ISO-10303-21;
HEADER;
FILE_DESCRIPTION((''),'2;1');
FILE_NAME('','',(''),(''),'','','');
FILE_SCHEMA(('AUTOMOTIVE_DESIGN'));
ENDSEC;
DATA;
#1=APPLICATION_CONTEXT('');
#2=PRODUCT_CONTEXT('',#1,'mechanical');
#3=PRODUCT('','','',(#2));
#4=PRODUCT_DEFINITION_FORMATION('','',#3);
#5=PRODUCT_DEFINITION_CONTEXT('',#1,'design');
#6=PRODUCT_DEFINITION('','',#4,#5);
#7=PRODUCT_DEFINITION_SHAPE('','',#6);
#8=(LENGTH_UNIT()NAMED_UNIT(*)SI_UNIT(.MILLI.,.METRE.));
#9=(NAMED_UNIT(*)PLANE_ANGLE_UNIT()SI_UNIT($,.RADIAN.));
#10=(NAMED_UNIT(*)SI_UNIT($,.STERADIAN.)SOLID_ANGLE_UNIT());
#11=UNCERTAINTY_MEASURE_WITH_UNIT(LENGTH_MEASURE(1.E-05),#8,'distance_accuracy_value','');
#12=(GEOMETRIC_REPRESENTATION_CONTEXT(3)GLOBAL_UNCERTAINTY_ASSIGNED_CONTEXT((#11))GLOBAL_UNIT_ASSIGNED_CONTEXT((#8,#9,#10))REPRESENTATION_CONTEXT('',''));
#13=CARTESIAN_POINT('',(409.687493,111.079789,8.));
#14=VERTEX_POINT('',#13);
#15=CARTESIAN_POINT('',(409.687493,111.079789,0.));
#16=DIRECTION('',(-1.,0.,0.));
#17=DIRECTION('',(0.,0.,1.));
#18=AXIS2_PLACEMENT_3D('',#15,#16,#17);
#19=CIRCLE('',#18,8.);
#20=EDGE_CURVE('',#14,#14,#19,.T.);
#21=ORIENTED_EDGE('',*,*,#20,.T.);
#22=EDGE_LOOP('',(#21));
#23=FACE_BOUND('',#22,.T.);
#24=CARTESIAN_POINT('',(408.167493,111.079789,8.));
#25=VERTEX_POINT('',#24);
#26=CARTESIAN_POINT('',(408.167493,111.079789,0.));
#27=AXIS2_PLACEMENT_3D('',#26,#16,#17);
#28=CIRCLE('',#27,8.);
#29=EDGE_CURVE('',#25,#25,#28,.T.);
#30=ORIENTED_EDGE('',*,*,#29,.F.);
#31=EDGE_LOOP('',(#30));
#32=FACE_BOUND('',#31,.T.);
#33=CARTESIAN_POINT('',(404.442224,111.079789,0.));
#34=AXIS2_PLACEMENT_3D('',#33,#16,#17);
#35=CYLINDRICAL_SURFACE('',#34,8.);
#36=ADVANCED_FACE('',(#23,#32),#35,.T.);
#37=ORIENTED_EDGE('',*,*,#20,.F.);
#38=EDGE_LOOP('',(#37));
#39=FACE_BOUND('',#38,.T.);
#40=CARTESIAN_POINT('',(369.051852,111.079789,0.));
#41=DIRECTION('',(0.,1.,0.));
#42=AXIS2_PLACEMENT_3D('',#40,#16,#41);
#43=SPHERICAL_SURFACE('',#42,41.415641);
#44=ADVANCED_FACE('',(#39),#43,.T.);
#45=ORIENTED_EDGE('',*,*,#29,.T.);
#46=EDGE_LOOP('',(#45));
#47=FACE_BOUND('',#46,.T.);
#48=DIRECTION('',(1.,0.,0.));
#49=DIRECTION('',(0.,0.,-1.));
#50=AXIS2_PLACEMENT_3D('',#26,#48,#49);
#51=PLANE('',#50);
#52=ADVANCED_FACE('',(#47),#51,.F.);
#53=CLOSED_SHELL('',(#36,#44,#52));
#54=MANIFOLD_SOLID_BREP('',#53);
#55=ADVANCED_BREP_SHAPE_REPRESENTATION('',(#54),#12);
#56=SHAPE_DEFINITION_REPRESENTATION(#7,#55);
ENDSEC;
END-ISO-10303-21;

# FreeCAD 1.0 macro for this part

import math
import FreeCAD as App
import Part
import Sketcher
from FreeCAD import Vector
Q = App.Units.Quantity

doc = App.newDocument("Part")
body = doc.addObject("PartDesign::Body", "Body")

sketch1 = body.newObject("Sketcher::SketchObject", "Sketch")
sketch1.AttachmentSupport = (doc.getObject("XY_Plane"), [""])
sketch1.MapMode = "FlatFace"
sketch1.addGeometry([
    Part.LineSegment(Vector(408.167493, 119.079789, 0), Vector(408.167493, 111.079789, 0)),
    Part.LineSegment(Vector(408.167493, 111.079789, 0), Vector(410.467493, 111.079789, 0)),
    Part.ArcOfCircle(Part.Circle(Vector(369.051852, 111.079789, 0), Vector(0, 0, 1), 41.415641), math.radians(0), math.radians(11.137474)),
    Part.LineSegment(Vector(409.687493, 119.079789, 0), Vector(408.167493, 119.079789, 0)),
], False)
sketch1.addGeometry(Part.LineSegment(Vector(369.051852, 111.079789, 0), Vector(410.467493, 111.079789, 0)), True)
sketch1.addConstraint([
    Sketcher.Constraint("Coincident", 0, 2, 1, 1),
    Sketcher.Constraint("Coincident", 1, 2, 2, 1),
    Sketcher.Constraint("Coincident", 2, 2, 3, 1),
    Sketcher.Constraint("Coincident", 3, 2, 0, 1),
    Sketcher.Constraint("Vertical", 0),
    Sketcher.Constraint("Horizontal", 1),
    Sketcher.Constraint("Horizontal", 3),
    Sketcher.Constraint("Horizontal", 4),
    Sketcher.Constraint("Coincident", 4, 1, 2, 3),
    Sketcher.Constraint("Coincident", 4, 2, 1, 2),
    Sketcher.Constraint("DistanceY", 0, 2, 0, 1, Q("8 mm")),
    Sketcher.Constraint("DistanceX", 1, 1, 1, 2, Q("2.3 mm")),
    Sketcher.Constraint("DistanceX", 3, 2, 3, 1, Q("1.52 mm")),
    Sketcher.Constraint("DistanceX", -1, 1, 2, 3, Q("369.051852 mm")),
    Sketcher.Constraint("DistanceY", -1, 1, 2, 3, Q("111.079789 mm")),
])
revolution = body.newObject("PartDesign::Revolution", "Revolution")
revolution.Profile = sketch1
revolution.ReferenceAxis = (sketch1, ["Axis0"])
revolution.Angle = 360

doc.recompute()
